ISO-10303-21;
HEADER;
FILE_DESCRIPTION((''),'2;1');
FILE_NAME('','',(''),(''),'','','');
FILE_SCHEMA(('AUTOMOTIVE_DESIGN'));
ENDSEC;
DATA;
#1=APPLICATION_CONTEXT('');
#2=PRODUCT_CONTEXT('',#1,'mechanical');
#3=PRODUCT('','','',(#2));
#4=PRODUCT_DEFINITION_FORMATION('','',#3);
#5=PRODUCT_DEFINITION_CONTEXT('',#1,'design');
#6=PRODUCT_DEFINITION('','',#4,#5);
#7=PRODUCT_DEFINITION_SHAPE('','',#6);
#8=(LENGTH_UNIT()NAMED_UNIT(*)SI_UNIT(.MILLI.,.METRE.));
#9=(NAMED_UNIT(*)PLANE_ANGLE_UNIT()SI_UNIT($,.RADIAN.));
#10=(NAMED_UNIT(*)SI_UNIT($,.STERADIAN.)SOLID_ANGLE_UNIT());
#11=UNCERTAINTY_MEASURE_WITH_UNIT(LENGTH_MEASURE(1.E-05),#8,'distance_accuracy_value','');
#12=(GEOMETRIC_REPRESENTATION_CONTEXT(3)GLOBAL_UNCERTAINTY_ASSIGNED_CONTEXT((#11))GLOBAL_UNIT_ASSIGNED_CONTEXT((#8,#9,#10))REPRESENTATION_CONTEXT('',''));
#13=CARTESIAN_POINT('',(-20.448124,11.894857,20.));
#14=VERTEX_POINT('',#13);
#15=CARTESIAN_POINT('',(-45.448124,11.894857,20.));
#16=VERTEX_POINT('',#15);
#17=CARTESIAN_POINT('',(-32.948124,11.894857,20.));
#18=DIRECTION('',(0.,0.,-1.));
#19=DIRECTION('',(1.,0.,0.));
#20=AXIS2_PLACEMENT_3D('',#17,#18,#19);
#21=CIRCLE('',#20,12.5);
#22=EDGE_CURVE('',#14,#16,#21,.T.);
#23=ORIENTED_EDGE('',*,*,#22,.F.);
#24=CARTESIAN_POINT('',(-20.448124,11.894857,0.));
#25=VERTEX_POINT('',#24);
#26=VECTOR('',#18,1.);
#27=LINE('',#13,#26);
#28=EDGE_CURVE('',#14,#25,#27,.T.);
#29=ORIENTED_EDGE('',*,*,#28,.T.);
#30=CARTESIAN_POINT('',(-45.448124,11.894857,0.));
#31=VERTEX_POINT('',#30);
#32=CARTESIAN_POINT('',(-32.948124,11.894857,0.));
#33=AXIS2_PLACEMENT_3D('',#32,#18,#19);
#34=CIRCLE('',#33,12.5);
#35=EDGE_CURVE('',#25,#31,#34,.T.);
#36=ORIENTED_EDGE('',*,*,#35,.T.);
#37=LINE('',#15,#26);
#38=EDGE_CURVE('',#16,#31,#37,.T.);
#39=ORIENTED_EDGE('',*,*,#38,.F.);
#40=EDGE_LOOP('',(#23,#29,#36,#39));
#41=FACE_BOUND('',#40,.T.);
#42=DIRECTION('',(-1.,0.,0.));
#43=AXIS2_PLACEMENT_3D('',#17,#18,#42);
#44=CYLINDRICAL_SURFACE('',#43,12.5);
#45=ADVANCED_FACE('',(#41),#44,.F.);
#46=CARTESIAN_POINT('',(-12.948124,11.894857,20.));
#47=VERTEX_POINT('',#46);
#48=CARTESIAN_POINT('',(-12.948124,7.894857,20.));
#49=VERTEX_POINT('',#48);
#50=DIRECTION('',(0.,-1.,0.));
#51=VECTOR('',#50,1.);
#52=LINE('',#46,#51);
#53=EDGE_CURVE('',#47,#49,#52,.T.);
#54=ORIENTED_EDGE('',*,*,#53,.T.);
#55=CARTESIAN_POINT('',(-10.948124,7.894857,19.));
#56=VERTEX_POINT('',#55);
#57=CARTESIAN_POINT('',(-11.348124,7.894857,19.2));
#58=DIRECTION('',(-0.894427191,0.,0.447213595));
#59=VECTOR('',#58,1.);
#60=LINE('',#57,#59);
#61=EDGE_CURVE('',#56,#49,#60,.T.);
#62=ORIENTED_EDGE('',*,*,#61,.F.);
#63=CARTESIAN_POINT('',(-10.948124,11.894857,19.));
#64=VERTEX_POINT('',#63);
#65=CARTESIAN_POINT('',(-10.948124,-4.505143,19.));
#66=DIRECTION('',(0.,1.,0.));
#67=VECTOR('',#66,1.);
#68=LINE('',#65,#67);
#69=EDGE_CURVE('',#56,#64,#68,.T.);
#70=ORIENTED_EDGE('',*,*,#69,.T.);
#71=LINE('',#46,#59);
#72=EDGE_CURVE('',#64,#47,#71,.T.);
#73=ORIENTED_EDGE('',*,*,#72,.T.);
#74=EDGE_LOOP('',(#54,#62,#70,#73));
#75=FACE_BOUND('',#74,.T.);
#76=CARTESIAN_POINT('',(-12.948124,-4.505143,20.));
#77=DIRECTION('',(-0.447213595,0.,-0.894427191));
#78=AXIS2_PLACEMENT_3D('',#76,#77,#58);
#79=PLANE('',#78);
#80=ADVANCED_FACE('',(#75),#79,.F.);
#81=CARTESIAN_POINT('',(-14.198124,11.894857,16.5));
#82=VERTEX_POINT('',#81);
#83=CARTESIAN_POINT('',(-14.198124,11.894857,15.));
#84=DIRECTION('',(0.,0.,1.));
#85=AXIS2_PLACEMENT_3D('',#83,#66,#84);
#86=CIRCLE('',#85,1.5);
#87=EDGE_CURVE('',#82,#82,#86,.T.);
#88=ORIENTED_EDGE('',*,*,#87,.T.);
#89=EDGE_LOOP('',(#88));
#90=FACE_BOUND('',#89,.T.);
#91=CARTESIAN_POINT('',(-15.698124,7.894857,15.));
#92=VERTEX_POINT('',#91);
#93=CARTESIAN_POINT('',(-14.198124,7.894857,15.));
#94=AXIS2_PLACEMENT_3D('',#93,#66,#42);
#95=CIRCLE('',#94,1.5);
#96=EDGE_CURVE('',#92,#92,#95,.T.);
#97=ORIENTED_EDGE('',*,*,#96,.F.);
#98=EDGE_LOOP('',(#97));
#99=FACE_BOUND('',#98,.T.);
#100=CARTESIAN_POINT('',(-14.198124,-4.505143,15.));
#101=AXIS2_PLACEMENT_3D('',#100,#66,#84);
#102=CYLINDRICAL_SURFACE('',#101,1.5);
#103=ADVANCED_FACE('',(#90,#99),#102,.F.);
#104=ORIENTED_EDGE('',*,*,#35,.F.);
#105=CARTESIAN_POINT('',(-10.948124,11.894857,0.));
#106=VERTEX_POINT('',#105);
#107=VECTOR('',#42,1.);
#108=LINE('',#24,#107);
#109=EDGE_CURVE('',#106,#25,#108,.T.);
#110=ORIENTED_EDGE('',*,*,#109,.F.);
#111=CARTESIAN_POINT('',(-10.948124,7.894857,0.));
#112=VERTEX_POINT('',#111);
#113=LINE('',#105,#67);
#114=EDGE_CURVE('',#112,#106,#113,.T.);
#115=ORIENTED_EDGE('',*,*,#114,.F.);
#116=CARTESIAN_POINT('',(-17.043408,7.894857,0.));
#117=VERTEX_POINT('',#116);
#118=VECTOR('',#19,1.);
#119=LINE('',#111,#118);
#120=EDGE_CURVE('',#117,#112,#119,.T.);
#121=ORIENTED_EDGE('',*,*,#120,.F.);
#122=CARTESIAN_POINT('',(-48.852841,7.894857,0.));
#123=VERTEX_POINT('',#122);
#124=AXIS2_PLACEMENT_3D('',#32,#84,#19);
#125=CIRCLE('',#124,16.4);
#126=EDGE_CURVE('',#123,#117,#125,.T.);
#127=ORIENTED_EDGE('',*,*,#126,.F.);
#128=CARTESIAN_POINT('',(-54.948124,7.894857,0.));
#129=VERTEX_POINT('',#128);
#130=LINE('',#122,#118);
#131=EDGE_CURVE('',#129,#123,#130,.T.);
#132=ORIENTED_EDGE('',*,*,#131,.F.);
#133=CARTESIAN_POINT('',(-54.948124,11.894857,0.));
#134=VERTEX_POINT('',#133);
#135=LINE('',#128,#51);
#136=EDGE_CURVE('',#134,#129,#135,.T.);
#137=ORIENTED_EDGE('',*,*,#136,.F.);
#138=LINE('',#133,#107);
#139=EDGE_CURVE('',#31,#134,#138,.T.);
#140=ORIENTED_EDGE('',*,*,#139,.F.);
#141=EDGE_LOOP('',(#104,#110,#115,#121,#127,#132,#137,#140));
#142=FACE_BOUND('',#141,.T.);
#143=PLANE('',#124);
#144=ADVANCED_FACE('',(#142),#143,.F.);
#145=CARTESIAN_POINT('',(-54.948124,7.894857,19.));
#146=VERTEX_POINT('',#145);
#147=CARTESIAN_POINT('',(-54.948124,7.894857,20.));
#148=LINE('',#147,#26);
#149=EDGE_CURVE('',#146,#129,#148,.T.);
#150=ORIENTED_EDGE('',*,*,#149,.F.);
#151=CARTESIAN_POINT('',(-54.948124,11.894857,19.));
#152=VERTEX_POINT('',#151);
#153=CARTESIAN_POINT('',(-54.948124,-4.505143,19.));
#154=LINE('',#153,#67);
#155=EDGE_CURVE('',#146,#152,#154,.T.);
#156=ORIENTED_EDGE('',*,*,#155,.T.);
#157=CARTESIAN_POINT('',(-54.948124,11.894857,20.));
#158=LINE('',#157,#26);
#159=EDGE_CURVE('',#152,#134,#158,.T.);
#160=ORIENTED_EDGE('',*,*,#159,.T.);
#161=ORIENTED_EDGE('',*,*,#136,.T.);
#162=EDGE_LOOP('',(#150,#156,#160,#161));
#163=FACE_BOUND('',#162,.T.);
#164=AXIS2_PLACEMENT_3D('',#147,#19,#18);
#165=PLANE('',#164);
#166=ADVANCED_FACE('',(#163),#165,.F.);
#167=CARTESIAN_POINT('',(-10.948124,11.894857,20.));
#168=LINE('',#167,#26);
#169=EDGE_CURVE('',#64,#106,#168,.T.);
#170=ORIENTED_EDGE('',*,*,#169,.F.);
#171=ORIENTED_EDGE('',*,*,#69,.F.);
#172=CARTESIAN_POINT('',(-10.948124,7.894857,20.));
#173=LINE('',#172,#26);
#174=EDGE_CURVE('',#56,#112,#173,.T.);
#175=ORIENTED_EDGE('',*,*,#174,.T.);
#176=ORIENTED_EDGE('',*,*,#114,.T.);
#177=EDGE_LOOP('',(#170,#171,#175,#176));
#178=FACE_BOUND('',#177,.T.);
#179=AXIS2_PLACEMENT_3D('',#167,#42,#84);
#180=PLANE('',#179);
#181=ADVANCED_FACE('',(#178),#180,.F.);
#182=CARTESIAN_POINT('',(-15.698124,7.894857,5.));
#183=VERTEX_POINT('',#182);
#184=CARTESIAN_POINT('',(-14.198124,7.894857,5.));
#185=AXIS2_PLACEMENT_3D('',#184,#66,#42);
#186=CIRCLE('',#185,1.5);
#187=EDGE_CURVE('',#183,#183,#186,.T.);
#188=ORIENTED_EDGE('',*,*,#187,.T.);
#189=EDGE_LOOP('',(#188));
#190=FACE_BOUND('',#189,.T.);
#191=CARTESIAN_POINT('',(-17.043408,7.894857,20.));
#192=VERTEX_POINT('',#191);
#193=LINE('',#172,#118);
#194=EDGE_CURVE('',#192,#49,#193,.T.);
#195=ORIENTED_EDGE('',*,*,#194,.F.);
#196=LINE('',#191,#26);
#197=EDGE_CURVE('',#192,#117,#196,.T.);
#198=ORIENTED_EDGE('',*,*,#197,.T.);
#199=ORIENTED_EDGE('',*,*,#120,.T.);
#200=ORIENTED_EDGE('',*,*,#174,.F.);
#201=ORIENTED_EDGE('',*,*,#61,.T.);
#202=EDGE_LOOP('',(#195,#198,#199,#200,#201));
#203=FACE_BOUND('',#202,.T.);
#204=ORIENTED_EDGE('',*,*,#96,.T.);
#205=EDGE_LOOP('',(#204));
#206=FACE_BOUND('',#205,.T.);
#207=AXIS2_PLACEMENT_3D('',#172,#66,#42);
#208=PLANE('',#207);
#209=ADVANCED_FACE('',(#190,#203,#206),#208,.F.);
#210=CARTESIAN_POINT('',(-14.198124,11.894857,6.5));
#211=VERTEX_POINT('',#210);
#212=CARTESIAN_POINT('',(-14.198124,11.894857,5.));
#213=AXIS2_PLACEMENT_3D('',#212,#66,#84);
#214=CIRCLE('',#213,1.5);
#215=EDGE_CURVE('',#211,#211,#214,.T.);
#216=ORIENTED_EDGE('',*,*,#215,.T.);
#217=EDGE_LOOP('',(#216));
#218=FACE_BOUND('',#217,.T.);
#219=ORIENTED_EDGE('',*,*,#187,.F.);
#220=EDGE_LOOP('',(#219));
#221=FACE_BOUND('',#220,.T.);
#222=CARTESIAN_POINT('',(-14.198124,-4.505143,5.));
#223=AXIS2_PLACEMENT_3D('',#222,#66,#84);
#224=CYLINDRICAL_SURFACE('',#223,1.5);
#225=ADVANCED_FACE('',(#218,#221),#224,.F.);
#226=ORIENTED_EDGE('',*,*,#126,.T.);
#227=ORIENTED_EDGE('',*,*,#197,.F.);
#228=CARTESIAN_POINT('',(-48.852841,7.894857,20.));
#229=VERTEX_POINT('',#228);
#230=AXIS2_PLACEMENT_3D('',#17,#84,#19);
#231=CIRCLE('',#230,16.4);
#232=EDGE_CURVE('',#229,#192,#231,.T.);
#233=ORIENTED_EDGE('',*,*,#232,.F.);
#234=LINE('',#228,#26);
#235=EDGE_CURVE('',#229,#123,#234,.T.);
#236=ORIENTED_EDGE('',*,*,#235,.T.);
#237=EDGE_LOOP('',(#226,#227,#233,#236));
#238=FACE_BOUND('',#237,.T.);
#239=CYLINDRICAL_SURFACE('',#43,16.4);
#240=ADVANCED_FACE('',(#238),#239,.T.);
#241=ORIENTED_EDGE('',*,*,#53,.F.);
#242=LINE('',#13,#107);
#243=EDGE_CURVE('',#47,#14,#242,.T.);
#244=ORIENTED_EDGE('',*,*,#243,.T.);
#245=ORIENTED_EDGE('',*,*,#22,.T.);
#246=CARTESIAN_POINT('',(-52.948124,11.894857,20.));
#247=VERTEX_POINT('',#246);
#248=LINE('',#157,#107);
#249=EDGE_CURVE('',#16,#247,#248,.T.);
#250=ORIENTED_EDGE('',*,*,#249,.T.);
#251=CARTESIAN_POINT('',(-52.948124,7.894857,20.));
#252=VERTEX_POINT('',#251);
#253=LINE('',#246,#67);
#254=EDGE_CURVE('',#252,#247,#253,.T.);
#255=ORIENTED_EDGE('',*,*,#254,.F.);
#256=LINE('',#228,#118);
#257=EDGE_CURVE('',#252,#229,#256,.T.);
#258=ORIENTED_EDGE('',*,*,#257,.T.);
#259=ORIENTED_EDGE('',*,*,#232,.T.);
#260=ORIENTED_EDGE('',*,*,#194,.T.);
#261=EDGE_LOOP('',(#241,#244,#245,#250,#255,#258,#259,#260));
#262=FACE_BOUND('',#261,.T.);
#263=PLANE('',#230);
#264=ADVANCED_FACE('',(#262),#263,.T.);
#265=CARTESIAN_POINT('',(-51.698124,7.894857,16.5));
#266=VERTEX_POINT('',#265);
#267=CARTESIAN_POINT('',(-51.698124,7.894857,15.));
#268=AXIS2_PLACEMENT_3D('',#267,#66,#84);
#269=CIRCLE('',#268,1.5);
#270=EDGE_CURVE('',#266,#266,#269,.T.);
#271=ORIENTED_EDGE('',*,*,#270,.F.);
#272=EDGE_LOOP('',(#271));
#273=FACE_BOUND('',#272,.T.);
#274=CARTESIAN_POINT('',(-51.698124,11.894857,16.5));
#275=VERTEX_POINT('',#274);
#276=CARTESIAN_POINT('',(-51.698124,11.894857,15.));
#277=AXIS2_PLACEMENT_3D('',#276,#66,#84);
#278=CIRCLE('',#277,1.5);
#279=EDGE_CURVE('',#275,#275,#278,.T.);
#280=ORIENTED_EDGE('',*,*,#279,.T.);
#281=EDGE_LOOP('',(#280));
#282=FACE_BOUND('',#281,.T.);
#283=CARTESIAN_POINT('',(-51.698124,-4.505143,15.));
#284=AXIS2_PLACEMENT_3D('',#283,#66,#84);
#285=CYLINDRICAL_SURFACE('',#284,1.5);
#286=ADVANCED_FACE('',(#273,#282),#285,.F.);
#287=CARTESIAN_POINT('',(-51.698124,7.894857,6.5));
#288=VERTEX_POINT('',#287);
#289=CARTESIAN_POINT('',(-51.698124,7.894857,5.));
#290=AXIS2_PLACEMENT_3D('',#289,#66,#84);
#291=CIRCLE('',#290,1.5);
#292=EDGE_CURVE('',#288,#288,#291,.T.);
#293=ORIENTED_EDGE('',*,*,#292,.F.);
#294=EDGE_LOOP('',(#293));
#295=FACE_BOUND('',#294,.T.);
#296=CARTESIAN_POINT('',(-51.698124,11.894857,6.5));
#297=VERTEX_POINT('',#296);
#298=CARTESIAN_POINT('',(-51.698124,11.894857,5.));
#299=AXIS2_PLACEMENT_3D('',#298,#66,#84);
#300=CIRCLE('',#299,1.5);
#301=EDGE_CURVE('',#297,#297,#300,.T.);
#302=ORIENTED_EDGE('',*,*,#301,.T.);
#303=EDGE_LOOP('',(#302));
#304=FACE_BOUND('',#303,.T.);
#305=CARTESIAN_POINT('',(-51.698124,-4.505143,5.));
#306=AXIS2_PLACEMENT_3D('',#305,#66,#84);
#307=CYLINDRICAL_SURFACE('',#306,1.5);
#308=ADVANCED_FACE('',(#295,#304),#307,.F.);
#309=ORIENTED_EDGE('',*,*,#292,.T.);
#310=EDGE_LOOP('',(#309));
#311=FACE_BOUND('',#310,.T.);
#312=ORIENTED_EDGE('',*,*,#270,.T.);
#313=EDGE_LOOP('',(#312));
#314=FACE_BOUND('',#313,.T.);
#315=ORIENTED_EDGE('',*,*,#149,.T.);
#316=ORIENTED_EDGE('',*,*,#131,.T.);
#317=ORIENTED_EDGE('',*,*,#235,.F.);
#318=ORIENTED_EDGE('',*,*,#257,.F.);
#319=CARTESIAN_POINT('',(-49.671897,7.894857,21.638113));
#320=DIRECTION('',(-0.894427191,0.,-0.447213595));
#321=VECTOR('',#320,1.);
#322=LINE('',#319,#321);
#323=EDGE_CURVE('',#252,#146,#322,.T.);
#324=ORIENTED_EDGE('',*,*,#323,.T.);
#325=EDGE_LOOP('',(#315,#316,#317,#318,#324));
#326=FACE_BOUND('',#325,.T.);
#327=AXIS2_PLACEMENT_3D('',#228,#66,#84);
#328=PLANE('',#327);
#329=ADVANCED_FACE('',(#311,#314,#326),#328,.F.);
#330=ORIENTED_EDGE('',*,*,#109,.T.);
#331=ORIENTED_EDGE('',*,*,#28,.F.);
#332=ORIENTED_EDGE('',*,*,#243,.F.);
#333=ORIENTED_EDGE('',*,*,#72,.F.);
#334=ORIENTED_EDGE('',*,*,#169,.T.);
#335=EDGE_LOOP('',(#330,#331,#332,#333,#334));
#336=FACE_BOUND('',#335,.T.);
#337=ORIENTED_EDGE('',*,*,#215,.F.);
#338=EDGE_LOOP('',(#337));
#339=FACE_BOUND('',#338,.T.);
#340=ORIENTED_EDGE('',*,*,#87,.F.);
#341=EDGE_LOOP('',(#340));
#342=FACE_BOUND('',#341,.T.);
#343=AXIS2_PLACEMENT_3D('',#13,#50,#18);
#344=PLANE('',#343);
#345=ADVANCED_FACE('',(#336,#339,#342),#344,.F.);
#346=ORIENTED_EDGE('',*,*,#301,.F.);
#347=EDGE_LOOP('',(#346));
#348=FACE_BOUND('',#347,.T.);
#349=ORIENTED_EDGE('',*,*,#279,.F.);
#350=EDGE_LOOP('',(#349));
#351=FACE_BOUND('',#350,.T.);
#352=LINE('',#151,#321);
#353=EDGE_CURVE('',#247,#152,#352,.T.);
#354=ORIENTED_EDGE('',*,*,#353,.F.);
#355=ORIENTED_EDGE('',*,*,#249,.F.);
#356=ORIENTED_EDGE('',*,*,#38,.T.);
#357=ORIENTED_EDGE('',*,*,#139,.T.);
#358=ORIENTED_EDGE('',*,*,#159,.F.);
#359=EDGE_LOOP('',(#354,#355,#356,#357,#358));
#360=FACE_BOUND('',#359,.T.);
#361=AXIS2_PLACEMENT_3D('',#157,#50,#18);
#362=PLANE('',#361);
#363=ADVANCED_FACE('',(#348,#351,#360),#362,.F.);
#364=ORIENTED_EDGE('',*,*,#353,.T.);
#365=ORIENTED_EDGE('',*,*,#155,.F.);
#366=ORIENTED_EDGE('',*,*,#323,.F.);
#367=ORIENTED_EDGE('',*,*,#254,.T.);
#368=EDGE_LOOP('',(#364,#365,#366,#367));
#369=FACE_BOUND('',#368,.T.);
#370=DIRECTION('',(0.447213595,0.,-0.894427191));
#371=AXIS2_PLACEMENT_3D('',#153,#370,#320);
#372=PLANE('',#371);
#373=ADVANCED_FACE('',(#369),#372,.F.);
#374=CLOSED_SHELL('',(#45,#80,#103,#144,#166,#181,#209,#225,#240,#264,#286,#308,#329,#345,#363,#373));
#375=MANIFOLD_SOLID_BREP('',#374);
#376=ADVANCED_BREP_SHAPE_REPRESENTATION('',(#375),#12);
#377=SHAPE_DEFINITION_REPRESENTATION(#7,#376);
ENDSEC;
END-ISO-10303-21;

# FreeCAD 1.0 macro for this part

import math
import FreeCAD as App
import Part
import Sketcher

V = App.Vector
Q = App.Units.Quantity


def add_polygon(sketch, points):
    """Adds a closed chain of lines whose ends are joined by coincident constraints."""
    first, n = sketch.GeometryCount, len(points)
    for a, b in zip(points, points[1:] + points[:1]):
        sketch.addGeometry(Part.LineSegment(App.Vector(*a, 0), App.Vector(*b, 0)), False)
    for i in range(n):
        sketch.addConstraint(Sketcher.Constraint("Coincident", first + i, 2, first + (i + 1) % n, 1))

doc = App.newDocument("Part")
params = doc.addObject("Spreadsheet::Sheet", "Params")
for row, (alias, value) in enumerate([
    ("sketch1_radius", "16.4 mm"),
    ("sketch1_radius2", "12.5 mm"),
    ("sketch1_height", "4 mm"),
    ("sketch1_width", "9.5 mm"),
    ("pad1_length", "20 mm"),
    ("sketch2_diameter", "3 mm"),
], start=1):
    params.set(f"A{row}", alias)
    params.set(f"B{row}", "=" + value)
    params.setAlias(f"B{row}", alias)

body = doc.addObject("PartDesign::Body", "Body")

# Sketch on XY plane
sketch1 = body.newObject("Sketcher::SketchObject", "Sketch")
sketch1.AttachmentSupport = (doc.getObject("XY_Plane"), [""])
sketch1.MapMode = "FlatFace"
sketch1.addGeometry(Part.LineSegment(V(-45.448124, 11.894857, 0), V(-54.948124, 11.894857, 0)), False)
sketch1.addGeometry(Part.LineSegment(V(-54.948124, 11.894857, 0), V(-54.948124, 7.894857, 0)), False)
sketch1.addGeometry(Part.LineSegment(V(-54.948124, 7.894857, 0), V(-48.852841, 7.894857, 0)), False)
sketch1.addGeometry(Part.ArcOfCircle(Part.Circle(V(-32.948124, 11.894857, 0), V(0, 0, 1), 16.4), math.radians(-165.883019), math.radians(-14.116981)), False)
sketch1.addGeometry(Part.LineSegment(V(-17.043408, 7.894857, 0), V(-10.948124, 7.894857, 0)), False)
sketch1.addGeometry(Part.LineSegment(V(-10.948124, 7.894857, 0), V(-10.948124, 11.894857, 0)), False)
sketch1.addGeometry(Part.LineSegment(V(-10.948124, 11.894857, 0), V(-20.448124, 11.894857, 0)), False)
sketch1.addGeometry(Part.ArcOfCircle(Part.Circle(V(-32.948124, 11.894857, 0), V(0, 0, 1), 12.5), math.radians(180), math.radians(360)), False)
sketch1.addConstraint(Sketcher.Constraint("Coincident", 0, 2, 1, 1))
sketch1.addConstraint(Sketcher.Constraint("Coincident", 1, 2, 2, 1))
sketch1.addConstraint(Sketcher.Constraint("Coincident", 2, 2, 3, 1))
sketch1.addConstraint(Sketcher.Constraint("Coincident", 3, 2, 4, 1))
sketch1.addConstraint(Sketcher.Constraint("Coincident", 4, 2, 5, 1))
sketch1.addConstraint(Sketcher.Constraint("Coincident", 5, 2, 6, 1))
sketch1.addConstraint(Sketcher.Constraint("Coincident", 6, 2, 7, 2))
sketch1.addConstraint(Sketcher.Constraint("Coincident", 7, 1, 0, 1))
sketch1.addConstraint(Sketcher.Constraint("Horizontal", 0))
sketch1.addConstraint(Sketcher.Constraint("Vertical", 1))
sketch1.addConstraint(Sketcher.Constraint("Horizontal", 2))
sketch1.addConstraint(Sketcher.Constraint("Horizontal", 4))
sketch1.addConstraint(Sketcher.Constraint("Vertical", 5))
sketch1.addConstraint(Sketcher.Constraint("Horizontal", 6))
sketch1.addConstraint(Sketcher.Constraint("Coincident", 7, 3, 3, 3))
sketch1.addConstraint(Sketcher.Constraint("Horizontal", 7, 3, 0, 2))
sketch1.addConstraint(Sketcher.Constraint("Horizontal", 2, 2, 3, 2))
sketch1.addConstraint(Sketcher.Constraint("Horizontal", 0, 2, 5, 2))
sketch1.addConstraint(Sketcher.Constraint("Equal", 2, 4))
sketch1.addConstraint(Sketcher.Constraint("Radius", 3, Q("16.4 mm")))
sketch1.addConstraint(Sketcher.Constraint("Radius", 7, Q("12.5 mm")))
sketch1.addConstraint(Sketcher.Constraint("DistanceY", 1, 2, 1, 1, Q("4 mm")))
sketch1.addConstraint(Sketcher.Constraint("DistanceX", 0, 2, 0, 1, Q("9.5 mm")))
sketch1.addConstraint(Sketcher.Constraint("DistanceX", 2, 2, -1, 1, Q("48.852841 mm")))
sketch1.addConstraint(Sketcher.Constraint("DistanceY", -1, 1, 3, 3, Q("11.894857 mm")))
sketch1.setExpression("Constraints[19]", "Params.sketch1_radius")
sketch1.setExpression("Constraints[20]", "Params.sketch1_radius2")
sketch1.setExpression("Constraints[21]", "Params.sketch1_height")
sketch1.setExpression("Constraints[22]", "Params.sketch1_width")
pad1 = body.newObject("PartDesign::Pad", "Pad")
pad1.Profile = sketch1
pad1.setExpression("Length", "Params.pad1_length")

# Sketch on XZ plane
sketch2 = body.newObject("Sketcher::SketchObject", "Sketch001")
sketch2.AttachmentSupport = (doc.getObject("XZ_Plane"), [""])
sketch2.MapMode = "FlatFace"
sketch2.AttachmentOffset = App.Placement(V(0, 0, -11.894857), App.Rotation())
sketch2.addGeometry(Part.Circle(V(-51.698124, 5, 0), V(0, 0, 1), 1.5), False)
sketch2.addGeometry(Part.Circle(V(-51.698124, 15, 0), V(0, 0, 1), 1.5), False)
sketch2.addGeometry(Part.Circle(V(-14.198124, 5, 0), V(0, 0, 1), 1.5), False)
sketch2.addGeometry(Part.Circle(V(-14.198124, 15, 0), V(0, 0, 1), 1.5), False)
sketch2.addConstraint(Sketcher.Constraint("Equal", 0, 1))
sketch2.addConstraint(Sketcher.Constraint("Equal", 1, 2))
sketch2.addConstraint(Sketcher.Constraint("Equal", 2, 3))
sketch2.addConstraint(Sketcher.Constraint("Horizontal", 0, 3, 2, 3))
sketch2.addConstraint(Sketcher.Constraint("Horizontal", 1, 3, 3, 3))
sketch2.addConstraint(Sketcher.Constraint("Vertical", 0, 3, 1, 3))
sketch2.addConstraint(Sketcher.Constraint("Vertical", 2, 3, 3, 3))
sketch2.addConstraint(Sketcher.Constraint("Diameter", 0, Q("3 mm")))
sketch2.addConstraint(Sketcher.Constraint("DistanceY", -1, 1, 0, 3, Q("5 mm")))
sketch2.addConstraint(Sketcher.Constraint("DistanceY", -1, 1, 1, 3, Q("15 mm")))
sketch2.addConstraint(Sketcher.Constraint("DistanceX", 0, 3, 2, 3, Q("37.5 mm")))
sketch2.addConstraint(Sketcher.Constraint("DistanceX", 0, 3, -1, 1, Q("51.698124 mm")))
sketch2.setExpression("Constraints[7]", "Params.sketch2_diameter")
pocket1 = body.newObject("PartDesign::Pocket", "Pocket")
pocket1.Profile = sketch2
pocket1.Type = "ThroughAll"
pocket1.Reversed = True

# Sketch on XZ plane
sketch3 = body.newObject("Sketcher::SketchObject", "Sketch002")
sketch3.AttachmentSupport = (doc.getObject("XZ_Plane"), [""])
sketch3.MapMode = "FlatFace"
sketch3.AttachmentOffset = App.Placement(V(0, 0, -11.894857), App.Rotation())
add_polygon(sketch3, [(-10.948124, 21.140032), (-8.775432, 20.480907), (-9.177543, 19.851517), (-10.948124, 19), (-12.948124, 20), (-13.238837, 21.140032)])  # lines 0-5
add_polygon(sketch3, [(-52.948124, 20), (-54.948124, 19), (-56.762312, 19), (-56.762312, 22.628376), (-52.948124, 22.628376)])  # lines 6-10
sketch3.addConstraint(Sketcher.Constraint("Horizontal", 5))
sketch3.addConstraint(Sketcher.Constraint("Horizontal", 7))
sketch3.addConstraint(Sketcher.Constraint("Vertical", 8))
sketch3.addConstraint(Sketcher.Constraint("Horizontal", 9))
sketch3.addConstraint(Sketcher.Constraint("Vertical", 10))
sketch3.addConstraint(Sketcher.Constraint("Horizontal", 2, 2, 6, 2))
sketch3.addConstraint(Sketcher.Constraint("Horizontal", 3, 2, 10, 2))
sketch3.addConstraint(Sketcher.Constraint("Vertical", 2, 2, 5, 2))
sketch3.addConstraint(Sketcher.Constraint("Equal", 3, 6))
sketch3.addConstraint(Sketcher.Constraint("DistanceY", -1, 1, 2, 2, Q("19 mm")))
sketch3.addConstraint(Sketcher.Constraint("DistanceY", -1, 1, 3, 2, Q("20 mm")))
sketch3.addConstraint(Sketcher.Constraint("DistanceX", 3, 2, 2, 2, Q("2 mm")))
sketch3.addConstraint(Sketcher.Constraint("DistanceX", 6, 2, 3, 2, Q("42 mm")))
sketch3.addConstraint(Sketcher.Constraint("Distance", 2, Q("1.964699 mm")))
sketch3.addConstraint(Sketcher.Constraint("DistanceX", 7, 2, 7, 1, Q("1.814188 mm")))
sketch3.addConstraint(Sketcher.Constraint("Distance", 0, Q("2.27047 mm")))
sketch3.addConstraint(Sketcher.Constraint("DistanceX", 5, 1, 5, 2, Q("2.290713 mm")))
sketch3.addConstraint(Sketcher.Constraint("DistanceY", 8, 1, 8, 2, Q("3.628376 mm")))
sketch3.addConstraint(Sketcher.Constraint("DistanceY", -1, 1, 4, 2, Q("21.140032 mm")))
sketch3.addConstraint(Sketcher.Constraint("DistanceX", 1, 2, 0, 2, Q("0.40211 mm")))
sketch3.addConstraint(Sketcher.Constraint("DistanceY", 1, 2, 0, 2, Q("0.62939 mm")))
sketch3.addConstraint(Sketcher.Constraint("DistanceX", 0, 2, -1, 1, Q("8.775432 mm")))
pocket2 = body.newObject("PartDesign::Pocket", "Pocket001")
pocket2.Profile = sketch3
pocket2.Type = "ThroughAll"
pocket2.Reversed = True

doc.recompute()
